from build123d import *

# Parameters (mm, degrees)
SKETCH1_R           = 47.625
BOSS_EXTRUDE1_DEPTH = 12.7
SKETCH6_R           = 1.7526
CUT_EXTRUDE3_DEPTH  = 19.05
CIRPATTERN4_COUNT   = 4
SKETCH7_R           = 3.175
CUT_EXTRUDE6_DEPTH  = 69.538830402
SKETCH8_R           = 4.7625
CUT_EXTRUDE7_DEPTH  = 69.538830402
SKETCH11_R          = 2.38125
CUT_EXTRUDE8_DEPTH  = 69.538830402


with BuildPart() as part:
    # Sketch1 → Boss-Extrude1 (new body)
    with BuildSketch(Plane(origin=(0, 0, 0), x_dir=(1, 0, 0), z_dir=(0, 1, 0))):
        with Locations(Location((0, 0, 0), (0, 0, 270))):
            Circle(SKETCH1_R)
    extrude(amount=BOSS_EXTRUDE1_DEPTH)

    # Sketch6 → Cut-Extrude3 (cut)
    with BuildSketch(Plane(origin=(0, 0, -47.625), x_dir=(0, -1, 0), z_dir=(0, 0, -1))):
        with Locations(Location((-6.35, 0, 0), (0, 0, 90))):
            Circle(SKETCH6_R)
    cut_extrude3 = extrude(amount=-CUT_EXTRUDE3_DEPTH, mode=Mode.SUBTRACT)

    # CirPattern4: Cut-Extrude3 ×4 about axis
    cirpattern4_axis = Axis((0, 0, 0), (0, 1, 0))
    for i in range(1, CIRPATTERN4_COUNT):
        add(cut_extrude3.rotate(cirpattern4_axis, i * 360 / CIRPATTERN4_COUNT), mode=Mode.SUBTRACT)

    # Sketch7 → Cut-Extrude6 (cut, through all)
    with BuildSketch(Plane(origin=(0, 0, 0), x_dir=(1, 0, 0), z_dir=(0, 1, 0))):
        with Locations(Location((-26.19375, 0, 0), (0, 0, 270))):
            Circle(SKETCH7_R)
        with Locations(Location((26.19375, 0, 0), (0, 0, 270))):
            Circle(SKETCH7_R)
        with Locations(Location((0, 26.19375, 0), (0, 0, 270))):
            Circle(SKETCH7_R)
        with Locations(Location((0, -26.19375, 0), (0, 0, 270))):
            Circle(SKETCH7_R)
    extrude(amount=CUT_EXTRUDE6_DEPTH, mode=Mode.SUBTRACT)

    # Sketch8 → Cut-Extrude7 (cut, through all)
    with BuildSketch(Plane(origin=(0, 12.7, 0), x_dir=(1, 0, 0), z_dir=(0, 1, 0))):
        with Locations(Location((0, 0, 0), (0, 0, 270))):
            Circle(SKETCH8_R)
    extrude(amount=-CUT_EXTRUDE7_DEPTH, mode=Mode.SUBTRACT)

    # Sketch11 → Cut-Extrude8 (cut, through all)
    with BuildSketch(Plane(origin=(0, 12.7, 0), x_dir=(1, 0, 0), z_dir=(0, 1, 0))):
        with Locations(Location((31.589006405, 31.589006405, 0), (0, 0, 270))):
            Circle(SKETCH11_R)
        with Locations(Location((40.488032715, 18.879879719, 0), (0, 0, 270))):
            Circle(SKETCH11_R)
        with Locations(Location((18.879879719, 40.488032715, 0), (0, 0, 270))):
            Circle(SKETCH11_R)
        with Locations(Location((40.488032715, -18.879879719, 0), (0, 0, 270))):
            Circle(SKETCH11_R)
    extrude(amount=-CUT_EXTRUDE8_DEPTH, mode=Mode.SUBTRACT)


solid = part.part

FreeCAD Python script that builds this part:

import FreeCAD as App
import Part
import Sketcher

V = App.Vector
Q = App.Units.Quantity

doc = App.newDocument("Part")
params = doc.addObject("Spreadsheet::Sheet", "Params")
for row, (alias, value) in enumerate([
    ("sketch1_diameter", "3.75 in"),
    ("pad1_length", "0.5 in"),
    ("sketch2_diameter", "0.138 in"),
    ("pocket1_length", "0.75 in"),
    ("sketch3_diameter", "0.25 in"),
    ("sketch4_diameter", "0.375 in"),
    ("sketch5_diameter", "0.1875 in"),
], start=1):
    params.set(f"A{row}", alias)
    params.set(f"B{row}", "=" + value)
    params.setAlias(f"B{row}", alias)

body = doc.addObject("PartDesign::Body", "Body")

# Sketch on XZ plane
sketch1 = doc.addObject("Sketcher::SketchObject", "Sketch")
body.addObject(sketch1)
sketch1.AttachmentSupport = (doc.XZ_Plane, [""])
sketch1.MapMode = "FlatFace"
sketch1.addGeometry(Part.Circle(V(0, 0, 0), V(0, 0, 1), 48), False)
sketch1.addConstraint([
    Sketcher.Constraint("Coincident", 0, 3, -1, 1),
    Sketcher.Constraint("Diameter", 0, Q("3.75 in")),
])
sketch1.setExpression("Constraints[1]", "Params.sketch1_diameter")
pad1 = doc.addObject("PartDesign::Pad", "Pad")
body.addObject(pad1)
pad1.Profile = sketch1
pad1.setExpression("Length", "Params.pad1_length")
pad1.Reversed = True

# Sketch on XY plane
sketch2 = doc.addObject("Sketcher::SketchObject", "Sketch001")
body.addObject(sketch2)
sketch2.AttachmentSupport = (doc.XY_Plane, [""])
sketch2.MapMode = "FlatFace"
sketch2.AttachmentOffset = App.Placement(V(0, 0, -1.875 * 25.4), App.Rotation())
sketch2.addGeometry(Part.Circle(V(0, 6.3, 0), V(0, 0, 1), 1.8), False)
sketch2.addConstraint([
    Sketcher.Constraint("PointOnObject", 0, 3, -2),
    Sketcher.Constraint("Diameter", 0, Q("0.138 in")),
    Sketcher.Constraint("DistanceY", -1, 1, 0, 3, Q("0.25 in")),
])
sketch2.setExpression("Constraints[1]", "Params.sketch2_diameter")
pocket1 = doc.addObject("PartDesign::Pocket", "Pocket")
body.addObject(pocket1)
pocket1.Profile = sketch2
pocket1.setExpression("Length", "Params.pocket1_length")
pocket1.Reversed = True
doc.recompute()

polarpattern = doc.addObject("PartDesign::PolarPattern", "PolarPattern")
body.addObject(polarpattern)
polarpattern.Originals = [pocket1]
polarpattern.Axis = (doc.Y_Axis, [""])
polarpattern.Angle = 360
polarpattern.Occurrences = 4
body.Tip = polarpattern

# Sketch on XZ plane
sketch3 = doc.addObject("Sketcher::SketchObject", "Sketch002")
body.addObject(sketch3)
sketch3.AttachmentSupport = (doc.XZ_Plane, [""])
sketch3.MapMode = "FlatFace"
sketch3.addGeometry([
    Part.Circle(V(-26.2, 0, 0), V(0, 0, 1), 3.2),
    Part.Circle(V(26.2, 0, 0), V(0, 0, 1), 3.2),
    Part.Circle(V(0, -26.2, 0), V(0, 0, 1), 3.2),
    Part.Circle(V(0, 26.2, 0), V(0, 0, 1), 3.2),
], False)
sketch3.addConstraint([
    Sketcher.Constraint("Equal", 0, 1),
    Sketcher.Constraint("Equal", 1, 2),
    Sketcher.Constraint("Equal", 2, 3),
    Sketcher.Constraint("Symmetric", 0, 3, 1, 3, -1, 1),
    Sketcher.Constraint("Symmetric", 2, 3, 3, 3, -1, 1),
    Sketcher.Constraint("PointOnObject", 0, 3, -1),
    Sketcher.Constraint("PointOnObject", 2, 3, -2),
    Sketcher.Constraint("Diameter", 0, Q("0.25 in")),
    Sketcher.Constraint("DistanceX", 0, 3, -1, 1, Q("1.03125 in")),
    Sketcher.Constraint("DistanceY", 2, 3, -1, 1, Q("1.03125 in")),
])
sketch3.setExpression("Constraints[7]", "Params.sketch3_diameter")
pocket2 = doc.addObject("PartDesign::Pocket", "Pocket001")
body.addObject(pocket2)
pocket2.Profile = sketch3
pocket2.Type = "ThroughAll"

# Sketch on XZ plane
sketch4 = doc.addObject("Sketcher::SketchObject", "Sketch003")
body.addObject(sketch4)
sketch4.AttachmentSupport = (doc.XZ_Plane, [""])
sketch4.MapMode = "FlatFace"
sketch4.AttachmentOffset = App.Placement(V(0, 0, -0.5 * 25.4), App.Rotation())
sketch4.addGeometry(Part.Circle(V(0, 0, 0), V(0, 0, 1), 4.8), False)
sketch4.addConstraint([
    Sketcher.Constraint("Coincident", 0, 3, -1, 1),
    Sketcher.Constraint("Diameter", 0, Q("0.375 in")),
])
sketch4.setExpression("Constraints[1]", "Params.sketch4_diameter")
pocket3 = doc.addObject("PartDesign::Pocket", "Pocket002")
body.addObject(pocket3)
pocket3.Profile = sketch4
pocket3.Type = "ThroughAll"
pocket3.Reversed = True

# Sketch on XZ plane
sketch5 = doc.addObject("Sketcher::SketchObject", "Sketch004")
body.addObject(sketch5)
sketch5.AttachmentSupport = (doc.XZ_Plane, [""])
sketch5.MapMode = "FlatFace"
sketch5.AttachmentOffset = App.Placement(V(0, 0, -0.5 * 25.4), App.Rotation())
sketch5.addGeometry([
    Part.Circle(V(31.6, -31.6, 0), V(0, 0, 1), 2.4),
    Part.Circle(V(40.5, -18.9, 0), V(0, 0, 1), 2.4),
    Part.Circle(V(18.9, -40.5, 0), V(0, 0, 1), 2.4),
    Part.Circle(V(40.5, 18.9, 0), V(0, 0, 1), 2.4),
], False)
sketch5.addConstraint([
    Sketcher.Constraint("Equal", 0, 1),
    Sketcher.Constraint("Equal", 1, 2),
    Sketcher.Constraint("Equal", 2, 3),
    Sketcher.Constraint("Symmetric", 1, 3, 3, 3, -1),
    Sketcher.Constraint("Diameter", 0, Q("0.1875 in")),
    Sketcher.Constraint("DistanceY", 1, 3, -1, 1, Q("18.87988 mm")),
    Sketcher.Constraint("DistanceX", -1, 1, 2, 3, Q("18.87988 mm")),
    Sketcher.Constraint("DistanceX", -1, 1, 0, 3, Q("31.589006 mm")),
    Sketcher.Constraint("DistanceY", 0, 3, -1, 1, Q("31.589006 mm")),
    Sketcher.Constraint("DistanceX", -1, 1, 1, 3, Q("40.488033 mm")),
    Sketcher.Constraint("DistanceY", 2, 3, -1, 1, Q("40.488033 mm")),
])
sketch5.setExpression("Constraints[4]", "Params.sketch5_diameter")
pocket4 = doc.addObject("PartDesign::Pocket", "Pocket003")
body.addObject(pocket4)
pocket4.Profile = sketch5
pocket4.Type = "ThroughAll"
pocket4.Reversed = True

doc.recompute()
